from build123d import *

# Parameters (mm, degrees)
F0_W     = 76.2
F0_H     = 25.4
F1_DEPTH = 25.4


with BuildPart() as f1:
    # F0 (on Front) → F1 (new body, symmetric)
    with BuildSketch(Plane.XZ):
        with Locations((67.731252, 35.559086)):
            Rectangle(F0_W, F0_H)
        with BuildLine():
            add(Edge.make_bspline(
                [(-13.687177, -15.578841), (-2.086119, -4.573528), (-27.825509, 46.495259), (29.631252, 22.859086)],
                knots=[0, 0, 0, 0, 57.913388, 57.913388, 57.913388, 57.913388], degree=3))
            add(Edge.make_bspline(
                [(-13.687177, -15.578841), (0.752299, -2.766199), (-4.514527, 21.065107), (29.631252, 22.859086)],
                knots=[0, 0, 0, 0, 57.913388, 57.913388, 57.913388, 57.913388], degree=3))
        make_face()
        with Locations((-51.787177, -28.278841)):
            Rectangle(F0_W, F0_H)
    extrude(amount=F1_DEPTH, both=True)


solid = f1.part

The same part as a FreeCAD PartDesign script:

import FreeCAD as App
import Part
import Sketcher
from FreeCAD import Vector
Q = App.Units.Quantity


def add_polygon(sketch, points):
    """Adds a closed chain of lines whose ends are joined by coincident constraints."""
    first, n = sketch.GeometryCount, len(points)
    for a, b in zip(points, points[1:] + points[:1]):
        sketch.addGeometry(Part.LineSegment(App.Vector(*a, 0), App.Vector(*b, 0)), False)
    for i in range(n):
        sketch.addConstraint(Sketcher.Constraint("Coincident", first + i, 2, first + (i + 1) % n, 1))

doc = App.newDocument("Part")
body = doc.addObject("PartDesign::Body", "Body")
body.AllowCompound = True

# Sketch on XZ plane
sketch1 = body.newObject("Sketcher::SketchObject", "Sketch")
sketch1.AttachmentSupport = (doc.getObject("XZ_Plane"), [""])
sketch1.MapMode = "FlatFace"
add_polygon(sketch1, [(29.631252, 48.259086), (29.631252, 22.859086), (105.831252, 22.859086), (105.831252, 48.259086)])  # lines 0-3
sketch1.addGeometry(Part.BSplineCurve([Vector(-13.687177, -15.578841, 0), Vector(-2.086119, -4.573528, 0), Vector(-27.825509, 46.495259, 0), Vector(29.631252, 22.859086, 0)], [4, 4], [0, 57.913388], False, 3, [1, 1, 1, 1], False), False)  # 4
sketch1.addGeometry(Part.BSplineCurve([Vector(-13.687177, -15.578841, 0), Vector(0.752299, -2.766199, 0), Vector(-4.514527, 21.065107, 0), Vector(29.631252, 22.859086, 0)], [4, 4], [0, 57.913388], False, 3, [1, 1, 1, 1], False), False)  # 5
add_polygon(sketch1, [(-89.887177, -15.578841), (-89.887177, -40.978841), (-13.687177, -40.978841), (-13.687177, -15.578841)])  # lines 6-9
sketch1.addConstraint([
    Sketcher.Constraint("Block", 4),
    Sketcher.Constraint("Block", 5),
    Sketcher.Constraint("Vertical", 0),
    Sketcher.Constraint("Horizontal", 1),
    Sketcher.Constraint("Vertical", 2),
    Sketcher.Constraint("Horizontal", 3),
    Sketcher.Constraint("Vertical", 6),
    Sketcher.Constraint("Horizontal", 7),
    Sketcher.Constraint("Vertical", 8),
    Sketcher.Constraint("Horizontal", 9),
    Sketcher.Constraint("Equal", 3, 7),
    Sketcher.Constraint("Equal", 2, 6),
    Sketcher.Constraint("DistanceX", 1, 1, 1, 2, Q("3 in")),
    Sketcher.Constraint("DistanceY", 0, 2, 0, 1, Q("1 in")),
    Sketcher.Constraint("DistanceX", -1, 1, 0, 2, 29.631252),
    Sketcher.Constraint("DistanceY", 6, 2, -1, 1, 40.978841),
    Sketcher.Constraint("DistanceX", 6, 2, 0, 2, 119.518429),
    Sketcher.Constraint("DistanceY", -1, 1, 0, 2, 22.859086),
])
pad1 = body.newObject("PartDesign::Pad", "Pad")
pad1.Profile = sketch1
pad1.Length = Q("2 in")
pad1.Midplane = True

doc.recompute()
